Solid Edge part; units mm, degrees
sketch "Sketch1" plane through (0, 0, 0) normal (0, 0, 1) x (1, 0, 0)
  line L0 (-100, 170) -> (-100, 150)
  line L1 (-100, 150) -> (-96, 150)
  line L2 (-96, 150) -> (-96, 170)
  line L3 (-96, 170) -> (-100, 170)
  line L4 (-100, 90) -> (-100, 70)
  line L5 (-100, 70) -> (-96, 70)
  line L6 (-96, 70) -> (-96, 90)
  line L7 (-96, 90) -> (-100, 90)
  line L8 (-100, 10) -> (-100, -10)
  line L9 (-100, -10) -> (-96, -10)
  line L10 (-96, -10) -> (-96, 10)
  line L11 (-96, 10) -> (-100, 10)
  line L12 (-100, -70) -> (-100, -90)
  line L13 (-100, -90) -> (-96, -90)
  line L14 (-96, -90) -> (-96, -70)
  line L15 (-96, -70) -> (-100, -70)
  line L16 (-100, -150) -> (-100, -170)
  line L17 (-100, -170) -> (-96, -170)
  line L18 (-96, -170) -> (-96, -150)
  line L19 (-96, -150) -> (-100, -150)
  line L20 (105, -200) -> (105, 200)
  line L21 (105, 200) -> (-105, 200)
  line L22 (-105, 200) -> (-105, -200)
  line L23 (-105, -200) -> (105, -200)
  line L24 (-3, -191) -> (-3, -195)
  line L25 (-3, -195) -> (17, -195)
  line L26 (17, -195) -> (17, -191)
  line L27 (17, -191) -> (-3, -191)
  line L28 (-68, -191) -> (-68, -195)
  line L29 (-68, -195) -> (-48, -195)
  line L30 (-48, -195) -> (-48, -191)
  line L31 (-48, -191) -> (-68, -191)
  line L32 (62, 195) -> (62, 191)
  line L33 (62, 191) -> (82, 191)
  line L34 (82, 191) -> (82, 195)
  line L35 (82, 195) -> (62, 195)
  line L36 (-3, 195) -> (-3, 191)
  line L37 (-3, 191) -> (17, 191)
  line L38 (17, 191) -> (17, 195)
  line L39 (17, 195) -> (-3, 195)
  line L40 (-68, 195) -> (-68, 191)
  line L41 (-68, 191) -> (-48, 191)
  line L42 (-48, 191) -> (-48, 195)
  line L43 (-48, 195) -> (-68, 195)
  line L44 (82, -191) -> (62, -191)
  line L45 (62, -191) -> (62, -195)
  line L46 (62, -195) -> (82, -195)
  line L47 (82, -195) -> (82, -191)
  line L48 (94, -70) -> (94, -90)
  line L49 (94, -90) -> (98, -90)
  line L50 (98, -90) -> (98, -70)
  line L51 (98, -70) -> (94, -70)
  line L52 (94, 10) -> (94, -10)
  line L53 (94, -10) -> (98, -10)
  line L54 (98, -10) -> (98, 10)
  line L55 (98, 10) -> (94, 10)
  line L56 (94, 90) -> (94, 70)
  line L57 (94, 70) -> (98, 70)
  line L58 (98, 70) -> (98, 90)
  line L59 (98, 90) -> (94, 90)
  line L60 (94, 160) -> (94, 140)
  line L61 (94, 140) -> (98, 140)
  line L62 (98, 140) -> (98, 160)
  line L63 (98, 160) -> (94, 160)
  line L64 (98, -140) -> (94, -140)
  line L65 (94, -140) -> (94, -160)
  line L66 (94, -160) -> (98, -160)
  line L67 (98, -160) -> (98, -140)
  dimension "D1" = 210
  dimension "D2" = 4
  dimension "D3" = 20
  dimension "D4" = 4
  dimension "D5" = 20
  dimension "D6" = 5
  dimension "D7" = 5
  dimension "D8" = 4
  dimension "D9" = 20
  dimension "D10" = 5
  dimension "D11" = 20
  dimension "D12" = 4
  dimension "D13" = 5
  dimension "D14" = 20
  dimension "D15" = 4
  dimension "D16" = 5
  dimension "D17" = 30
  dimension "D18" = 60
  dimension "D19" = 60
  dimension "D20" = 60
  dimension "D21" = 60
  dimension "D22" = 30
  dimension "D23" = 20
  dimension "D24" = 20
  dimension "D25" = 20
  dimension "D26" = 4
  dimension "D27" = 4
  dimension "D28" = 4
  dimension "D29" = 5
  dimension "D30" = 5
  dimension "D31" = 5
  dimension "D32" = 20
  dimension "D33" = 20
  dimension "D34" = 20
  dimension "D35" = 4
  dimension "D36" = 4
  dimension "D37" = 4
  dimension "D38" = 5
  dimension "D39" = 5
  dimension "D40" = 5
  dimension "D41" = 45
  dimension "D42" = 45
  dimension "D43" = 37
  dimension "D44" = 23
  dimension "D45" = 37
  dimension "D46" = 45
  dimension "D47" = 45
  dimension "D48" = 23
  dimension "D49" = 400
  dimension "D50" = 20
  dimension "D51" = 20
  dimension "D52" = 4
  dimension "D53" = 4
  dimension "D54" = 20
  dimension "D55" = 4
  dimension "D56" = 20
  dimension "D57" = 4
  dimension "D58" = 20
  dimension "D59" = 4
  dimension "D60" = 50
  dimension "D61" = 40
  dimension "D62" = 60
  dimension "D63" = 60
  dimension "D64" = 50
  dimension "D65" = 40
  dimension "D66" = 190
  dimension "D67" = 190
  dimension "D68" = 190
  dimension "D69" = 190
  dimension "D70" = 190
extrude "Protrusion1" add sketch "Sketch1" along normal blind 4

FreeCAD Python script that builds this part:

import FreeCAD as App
import Part
import Sketcher

V = App.Vector
Q = App.Units.Quantity

doc = App.newDocument("Part")
body = doc.addObject("PartDesign::Body", "Body")

# Sketch on XY plane
sketch1 = doc.addObject("Sketcher::SketchObject", "Sketch")
body.addObject(sketch1)
sketch1.AttachmentSupport = (doc.XY_Plane, [""])
sketch1.MapMode = "FlatFace"
sketch1.addGeometry([
    Part.LineSegment(V(-105, -200, 0), V(105, -200, 0)),  # 0
    Part.LineSegment(V(105, -200, 0), V(105, 200, 0)),  # 1
    Part.LineSegment(V(105, 200, 0), V(-105, 200, 0)),  # 2
    Part.LineSegment(V(-105, 200, 0), V(-105, -200, 0)),  # 3
    Part.LineSegment(V(-100, -170, 0), V(-100, -150, 0)),  # 4
    Part.LineSegment(V(-100, -150, 0), V(-96, -150, 0)),  # 5
    Part.LineSegment(V(-96, -150, 0), V(-96, -170, 0)),  # 6
    Part.LineSegment(V(-96, -170, 0), V(-100, -170, 0)),  # 7
    Part.LineSegment(V(-68, -195, 0), V(-68, -191, 0)),  # 8
    Part.LineSegment(V(-68, -191, 0), V(-48, -191, 0)),  # 9
    Part.LineSegment(V(-48, -191, 0), V(-48, -195, 0)),  # 10
    Part.LineSegment(V(-48, -195, 0), V(-68, -195, 0)),  # 11
    Part.LineSegment(V(-100, -90, 0), V(-100, -70, 0)),  # 12
    Part.LineSegment(V(-100, -70, 0), V(-96, -70, 0)),  # 13
    Part.LineSegment(V(-96, -70, 0), V(-96, -90, 0)),  # 14
    Part.LineSegment(V(-96, -90, 0), V(-100, -90, 0)),  # 15
    Part.LineSegment(V(-3, -195, 0), V(-3, -191, 0)),  # 16
    Part.LineSegment(V(-3, -191, 0), V(17, -191, 0)),  # 17
    Part.LineSegment(V(17, -191, 0), V(17, -195, 0)),  # 18
    Part.LineSegment(V(17, -195, 0), V(-3, -195, 0)),  # 19
    Part.LineSegment(V(62, -191, 0), V(82, -191, 0)),  # 20
    Part.LineSegment(V(82, -191, 0), V(82, -195, 0)),  # 21
    Part.LineSegment(V(82, -195, 0), V(62, -195, 0)),  # 22
    Part.LineSegment(V(62, -195, 0), V(62, -191, 0)),  # 23
    Part.LineSegment(V(94, -140, 0), V(98, -140, 0)),  # 24
    Part.LineSegment(V(98, -140, 0), V(98, -160, 0)),  # 25
    Part.LineSegment(V(98, -160, 0), V(94, -160, 0)),  # 26
    Part.LineSegment(V(94, -160, 0), V(94, -140, 0)),  # 27
    Part.LineSegment(V(94, -90, 0), V(94, -70, 0)),  # 28
    Part.LineSegment(V(94, -70, 0), V(98, -70, 0)),  # 29
    Part.LineSegment(V(98, -70, 0), V(98, -90, 0)),  # 30
    Part.LineSegment(V(98, -90, 0), V(94, -90, 0)),  # 31
    Part.LineSegment(V(-100, -10, 0), V(-100, 10, 0)),  # 32
    Part.LineSegment(V(-100, 10, 0), V(-96, 10, 0)),  # 33
    Part.LineSegment(V(-96, 10, 0), V(-96, -10, 0)),  # 34
    Part.LineSegment(V(-96, -10, 0), V(-100, -10, 0)),  # 35
    Part.LineSegment(V(-100, 70, 0), V(-100, 90, 0)),  # 36
    Part.LineSegment(V(-100, 90, 0), V(-96, 90, 0)),  # 37
    Part.LineSegment(V(-96, 90, 0), V(-96, 70, 0)),  # 38
    Part.LineSegment(V(-96, 70, 0), V(-100, 70, 0)),  # 39
    Part.LineSegment(V(-100, 150, 0), V(-100, 170, 0)),  # 40
    Part.LineSegment(V(-100, 170, 0), V(-96, 170, 0)),  # 41
    Part.LineSegment(V(-96, 170, 0), V(-96, 150, 0)),  # 42
    Part.LineSegment(V(-96, 150, 0), V(-100, 150, 0)),  # 43
    Part.LineSegment(V(-68, 191, 0), V(-68, 195, 0)),  # 44
    Part.LineSegment(V(-68, 195, 0), V(-48, 195, 0)),  # 45
    Part.LineSegment(V(-48, 195, 0), V(-48, 191, 0)),  # 46
    Part.LineSegment(V(-48, 191, 0), V(-68, 191, 0)),  # 47
    Part.LineSegment(V(94, -10, 0), V(94, 10, 0)),  # 48
    Part.LineSegment(V(94, 10, 0), V(98, 10, 0)),  # 49
    Part.LineSegment(V(98, 10, 0), V(98, -10, 0)),  # 50
    Part.LineSegment(V(98, -10, 0), V(94, -10, 0)),  # 51
    Part.LineSegment(V(94, 70, 0), V(94, 90, 0)),  # 52
    Part.LineSegment(V(94, 90, 0), V(98, 90, 0)),  # 53
    Part.LineSegment(V(98, 90, 0), V(98, 70, 0)),  # 54
    Part.LineSegment(V(98, 70, 0), V(94, 70, 0)),  # 55
    Part.LineSegment(V(-3, 191, 0), V(-3, 195, 0)),  # 56
    Part.LineSegment(V(-3, 195, 0), V(17, 195, 0)),  # 57
    Part.LineSegment(V(17, 195, 0), V(17, 191, 0)),  # 58
    Part.LineSegment(V(17, 191, 0), V(-3, 191, 0)),  # 59
    Part.LineSegment(V(62, 191, 0), V(62, 195, 0)),  # 60
    Part.LineSegment(V(62, 195, 0), V(82, 195, 0)),  # 61
    Part.LineSegment(V(82, 195, 0), V(82, 191, 0)),  # 62
    Part.LineSegment(V(82, 191, 0), V(62, 191, 0)),  # 63
    Part.LineSegment(V(94, 140, 0), V(94, 160, 0)),  # 64
    Part.LineSegment(V(94, 160, 0), V(98, 160, 0)),  # 65
    Part.LineSegment(V(98, 160, 0), V(98, 140, 0)),  # 66
    Part.LineSegment(V(98, 140, 0), V(94, 140, 0)),  # 67
], False)
sketch1.addConstraint([
    Sketcher.Constraint("Coincident", 0, 2, 1, 1),
    Sketcher.Constraint("Coincident", 1, 2, 2, 1),
    Sketcher.Constraint("Coincident", 2, 2, 3, 1),
    Sketcher.Constraint("Coincident", 3, 2, 0, 1),
    Sketcher.Constraint("Coincident", 4, 2, 5, 1),
    Sketcher.Constraint("Coincident", 5, 2, 6, 1),
    Sketcher.Constraint("Coincident", 6, 2, 7, 1),
    Sketcher.Constraint("Coincident", 7, 2, 4, 1),
    Sketcher.Constraint("Coincident", 8, 2, 9, 1),
    Sketcher.Constraint("Coincident", 9, 2, 10, 1),
    Sketcher.Constraint("Coincident", 10, 2, 11, 1),
    Sketcher.Constraint("Coincident", 11, 2, 8, 1),
    Sketcher.Constraint("Coincident", 12, 2, 13, 1),
    Sketcher.Constraint("Coincident", 13, 2, 14, 1),
    Sketcher.Constraint("Coincident", 14, 2, 15, 1),
    Sketcher.Constraint("Coincident", 15, 2, 12, 1),
    Sketcher.Constraint("Coincident", 16, 2, 17, 1),
    Sketcher.Constraint("Coincident", 17, 2, 18, 1),
    Sketcher.Constraint("Coincident", 18, 2, 19, 1),
    Sketcher.Constraint("Coincident", 19, 2, 16, 1),
    Sketcher.Constraint("Coincident", 20, 2, 21, 1),
    Sketcher.Constraint("Coincident", 21, 2, 22, 1),
    Sketcher.Constraint("Coincident", 22, 2, 23, 1),
    Sketcher.Constraint("Coincident", 23, 2, 20, 1),
    Sketcher.Constraint("Coincident", 24, 2, 25, 1),
    Sketcher.Constraint("Coincident", 25, 2, 26, 1),
    Sketcher.Constraint("Coincident", 26, 2, 27, 1),
    Sketcher.Constraint("Coincident", 27, 2, 24, 1),
    Sketcher.Constraint("Coincident", 28, 2, 29, 1),
    Sketcher.Constraint("Coincident", 29, 2, 30, 1),
    Sketcher.Constraint("Coincident", 30, 2, 31, 1),
    Sketcher.Constraint("Coincident", 31, 2, 28, 1),
    Sketcher.Constraint("Coincident", 32, 2, 33, 1),
    Sketcher.Constraint("Coincident", 33, 2, 34, 1),
    Sketcher.Constraint("Coincident", 34, 2, 35, 1),
    Sketcher.Constraint("Coincident", 35, 2, 32, 1),
    Sketcher.Constraint("Coincident", 36, 2, 37, 1),
    Sketcher.Constraint("Coincident", 37, 2, 38, 1),
    Sketcher.Constraint("Coincident", 38, 2, 39, 1),
    Sketcher.Constraint("Coincident", 39, 2, 36, 1),
    Sketcher.Constraint("Coincident", 40, 2, 41, 1),
    Sketcher.Constraint("Coincident", 41, 2, 42, 1),
    Sketcher.Constraint("Coincident", 42, 2, 43, 1),
    Sketcher.Constraint("Coincident", 43, 2, 40, 1),
    Sketcher.Constraint("Coincident", 44, 2, 45, 1),
    Sketcher.Constraint("Coincident", 45, 2, 46, 1),
    Sketcher.Constraint("Coincident", 46, 2, 47, 1),
    Sketcher.Constraint("Coincident", 47, 2, 44, 1),
    Sketcher.Constraint("Coincident", 48, 2, 49, 1),
    Sketcher.Constraint("Coincident", 49, 2, 50, 1),
    Sketcher.Constraint("Coincident", 50, 2, 51, 1),
    Sketcher.Constraint("Coincident", 51, 2, 48, 1),
    Sketcher.Constraint("Coincident", 52, 2, 53, 1),
    Sketcher.Constraint("Coincident", 53, 2, 54, 1),
    Sketcher.Constraint("Coincident", 54, 2, 55, 1),
    Sketcher.Constraint("Coincident", 55, 2, 52, 1),
    Sketcher.Constraint("Coincident", 56, 2, 57, 1),
    Sketcher.Constraint("Coincident", 57, 2, 58, 1),
    Sketcher.Constraint("Coincident", 58, 2, 59, 1),
    Sketcher.Constraint("Coincident", 59, 2, 56, 1),
    Sketcher.Constraint("Coincident", 60, 2, 61, 1),
    Sketcher.Constraint("Coincident", 61, 2, 62, 1),
    Sketcher.Constraint("Coincident", 62, 2, 63, 1),
    Sketcher.Constraint("Coincident", 63, 2, 60, 1),
    Sketcher.Constraint("Coincident", 64, 2, 65, 1),
    Sketcher.Constraint("Coincident", 65, 2, 66, 1),
    Sketcher.Constraint("Coincident", 66, 2, 67, 1),
    Sketcher.Constraint("Coincident", 67, 2, 64, 1),
    Sketcher.Constraint("Horizontal", 0),
    Sketcher.Constraint("Vertical", 1),
    Sketcher.Constraint("Horizontal", 2),
    Sketcher.Constraint("Vertical", 3),
    Sketcher.Constraint("Vertical", 4),
    Sketcher.Constraint("Horizontal", 5),
    Sketcher.Constraint("Vertical", 6),
    Sketcher.Constraint("Horizontal", 7),
    Sketcher.Constraint("Vertical", 8),
    Sketcher.Constraint("Horizontal", 9),
    Sketcher.Constraint("Vertical", 10),
    Sketcher.Constraint("Horizontal", 11),
    Sketcher.Constraint("Vertical", 12),
    Sketcher.Constraint("Horizontal", 13),
    Sketcher.Constraint("Vertical", 14),
    Sketcher.Constraint("Horizontal", 15),
    Sketcher.Constraint("Vertical", 16),
    Sketcher.Constraint("Horizontal", 17),
    Sketcher.Constraint("Vertical", 18),
    Sketcher.Constraint("Horizontal", 19),
    Sketcher.Constraint("Horizontal", 20),
    Sketcher.Constraint("Vertical", 21),
    Sketcher.Constraint("Horizontal", 22),
    Sketcher.Constraint("Vertical", 23),
    Sketcher.Constraint("Horizontal", 24),
    Sketcher.Constraint("Vertical", 25),
    Sketcher.Constraint("Horizontal", 26),
    Sketcher.Constraint("Vertical", 27),
    Sketcher.Constraint("Vertical", 28),
    Sketcher.Constraint("Horizontal", 29),
    Sketcher.Constraint("Vertical", 30),
    Sketcher.Constraint("Horizontal", 31),
    Sketcher.Constraint("Vertical", 32),
    Sketcher.Constraint("Horizontal", 33),
    Sketcher.Constraint("Vertical", 34),
    Sketcher.Constraint("Horizontal", 35),
    Sketcher.Constraint("Vertical", 36),
    Sketcher.Constraint("Horizontal", 37),
    Sketcher.Constraint("Vertical", 38),
    Sketcher.Constraint("Horizontal", 39),
    Sketcher.Constraint("Vertical", 40),
    Sketcher.Constraint("Horizontal", 41),
    Sketcher.Constraint("Vertical", 42),
    Sketcher.Constraint("Horizontal", 43),
    Sketcher.Constraint("Vertical", 44),
    Sketcher.Constraint("Horizontal", 45),
    Sketcher.Constraint("Vertical", 46),
    Sketcher.Constraint("Horizontal", 47),
    Sketcher.Constraint("Vertical", 48),
    Sketcher.Constraint("Horizontal", 49),
    Sketcher.Constraint("Vertical", 50),
    Sketcher.Constraint("Horizontal", 51),
    Sketcher.Constraint("Vertical", 52),
    Sketcher.Constraint("Horizontal", 53),
    Sketcher.Constraint("Vertical", 54),
    Sketcher.Constraint("Horizontal", 55),
    Sketcher.Constraint("Vertical", 56),
    Sketcher.Constraint("Horizontal", 57),
    Sketcher.Constraint("Vertical", 58),
    Sketcher.Constraint("Horizontal", 59),
    Sketcher.Constraint("Vertical", 60),
    Sketcher.Constraint("Horizontal", 61),
    Sketcher.Constraint("Vertical", 62),
    Sketcher.Constraint("Horizontal", 63),
    Sketcher.Constraint("Vertical", 64),
    Sketcher.Constraint("Horizontal", 65),
    Sketcher.Constraint("Vertical", 66),
    Sketcher.Constraint("Horizontal", 67),
    Sketcher.Constraint("Symmetric", 0, 2, 2, 2, -1, 1),
    Sketcher.Constraint("Symmetric", 15, 2, 36, 2, -1),
    Sketcher.Constraint("Symmetric", 13, 2, 38, 2, -1),
    Sketcher.Constraint("Symmetric", 7, 2, 40, 2, -1),
    Sketcher.Constraint("Symmetric", 5, 2, 42, 2, -1),
    Sketcher.Constraint("Symmetric", 11, 2, 44, 2, -1),
    Sketcher.Constraint("Symmetric", 9, 2, 46, 2, -1),
    Sketcher.Constraint("Symmetric", 31, 2, 52, 2, -1),
    Sketcher.Constraint("Symmetric", 29, 2, 54, 2, -1),
    Sketcher.Constraint("Symmetric", 19, 2, 56, 2, -1),
    Sketcher.Constraint("Symmetric", 17, 2, 58, 2, -1),
    Sketcher.Constraint("Symmetric", 22, 2, 60, 2, -1),
    Sketcher.Constraint("Symmetric", 20, 2, 62, 2, -1),
    Sketcher.Constraint("Symmetric", 26, 2, 64, 2, -1),
    Sketcher.Constraint("Symmetric", 24, 2, 66, 2, -1),
    Sketcher.Constraint("Horizontal", 9, 2, 16, 2),
    Sketcher.Constraint("Horizontal", 11, 2, 18, 2),
    Sketcher.Constraint("Horizontal", 17, 2, 20, 2),
    Sketcher.Constraint("Horizontal", 19, 2, 21, 2),
    Sketcher.Constraint("Horizontal", 13, 2, 28, 2),
    Sketcher.Constraint("Horizontal", 15, 2, 30, 2),
    Sketcher.Constraint("Horizontal", 33, 2, 48, 2),
    Sketcher.Constraint("Horizontal", 35, 2, 50, 2),
    Sketcher.Constraint("Vertical", 7, 2, 12, 2),
    Sketcher.Constraint("Vertical", 6, 2, 13, 2),
    Sketcher.Constraint("Vertical", 27, 2, 28, 2),
    Sketcher.Constraint("Vertical", 25, 2, 29, 2),
    Sketcher.Constraint("Vertical", 15, 2, 32, 2),
    Sketcher.Constraint("Vertical", 14, 2, 33, 2),
    Sketcher.Constraint("Vertical", 31, 2, 48, 2),
    Sketcher.Constraint("Vertical", 30, 2, 49, 2),
    Sketcher.Constraint("Equal", 11, 17),
    Sketcher.Constraint("Equal", 19, 20),
    Sketcher.Constraint("Equal", 15, 24),
    Sketcher.Constraint("Equal", 63, 4),
    Sketcher.Constraint("Equal", 67, 8),
    Sketcher.Constraint("Equal", 6, 12),
    Sketcher.Constraint("Equal", 14, 25),
    Sketcher.Constraint("Equal", 30, 32),
    Sketcher.Constraint("DistanceX", 0, 1, 0, 2, Q("210 mm")),
    Sketcher.Constraint("DistanceX", 5, 1, 5, 2, Q("4 mm")),
    Sketcher.Constraint("DistanceX", 9, 1, 9, 2, Q("20 mm")),
    Sketcher.Constraint("DistanceY", 1, 1, 1, 2, Q("400 mm")),
    Sketcher.Constraint("DistanceX", 4, 2, -1, 1, Q("100 mm")),
    Sketcher.Constraint("DistanceY", 4, 2, -1, 1, Q("150 mm")),
    Sketcher.Constraint("DistanceX", 8, 2, -1, 1, Q("68 mm")),
    Sketcher.Constraint("DistanceY", 8, 2, -1, 1, Q("191 mm")),
    Sketcher.Constraint("DistanceY", 12, 2, -1, 1, Q("70 mm")),
    Sketcher.Constraint("DistanceX", 16, 2, -1, 1, Q("3 mm")),
    Sketcher.Constraint("DistanceX", -1, 1, 20, 2, Q("82 mm")),
    Sketcher.Constraint("DistanceX", -1, 1, 24, 2, Q("98 mm")),
    Sketcher.Constraint("DistanceY", 24, 2, -1, 1, Q("140 mm")),
    Sketcher.Constraint("DistanceY", -1, 1, 32, 2, Q("10 mm")),
])
pad1 = doc.addObject("PartDesign::Pad", "Pad")
body.addObject(pad1)
pad1.Profile = sketch1
pad1.Length = 4

doc.recompute()
